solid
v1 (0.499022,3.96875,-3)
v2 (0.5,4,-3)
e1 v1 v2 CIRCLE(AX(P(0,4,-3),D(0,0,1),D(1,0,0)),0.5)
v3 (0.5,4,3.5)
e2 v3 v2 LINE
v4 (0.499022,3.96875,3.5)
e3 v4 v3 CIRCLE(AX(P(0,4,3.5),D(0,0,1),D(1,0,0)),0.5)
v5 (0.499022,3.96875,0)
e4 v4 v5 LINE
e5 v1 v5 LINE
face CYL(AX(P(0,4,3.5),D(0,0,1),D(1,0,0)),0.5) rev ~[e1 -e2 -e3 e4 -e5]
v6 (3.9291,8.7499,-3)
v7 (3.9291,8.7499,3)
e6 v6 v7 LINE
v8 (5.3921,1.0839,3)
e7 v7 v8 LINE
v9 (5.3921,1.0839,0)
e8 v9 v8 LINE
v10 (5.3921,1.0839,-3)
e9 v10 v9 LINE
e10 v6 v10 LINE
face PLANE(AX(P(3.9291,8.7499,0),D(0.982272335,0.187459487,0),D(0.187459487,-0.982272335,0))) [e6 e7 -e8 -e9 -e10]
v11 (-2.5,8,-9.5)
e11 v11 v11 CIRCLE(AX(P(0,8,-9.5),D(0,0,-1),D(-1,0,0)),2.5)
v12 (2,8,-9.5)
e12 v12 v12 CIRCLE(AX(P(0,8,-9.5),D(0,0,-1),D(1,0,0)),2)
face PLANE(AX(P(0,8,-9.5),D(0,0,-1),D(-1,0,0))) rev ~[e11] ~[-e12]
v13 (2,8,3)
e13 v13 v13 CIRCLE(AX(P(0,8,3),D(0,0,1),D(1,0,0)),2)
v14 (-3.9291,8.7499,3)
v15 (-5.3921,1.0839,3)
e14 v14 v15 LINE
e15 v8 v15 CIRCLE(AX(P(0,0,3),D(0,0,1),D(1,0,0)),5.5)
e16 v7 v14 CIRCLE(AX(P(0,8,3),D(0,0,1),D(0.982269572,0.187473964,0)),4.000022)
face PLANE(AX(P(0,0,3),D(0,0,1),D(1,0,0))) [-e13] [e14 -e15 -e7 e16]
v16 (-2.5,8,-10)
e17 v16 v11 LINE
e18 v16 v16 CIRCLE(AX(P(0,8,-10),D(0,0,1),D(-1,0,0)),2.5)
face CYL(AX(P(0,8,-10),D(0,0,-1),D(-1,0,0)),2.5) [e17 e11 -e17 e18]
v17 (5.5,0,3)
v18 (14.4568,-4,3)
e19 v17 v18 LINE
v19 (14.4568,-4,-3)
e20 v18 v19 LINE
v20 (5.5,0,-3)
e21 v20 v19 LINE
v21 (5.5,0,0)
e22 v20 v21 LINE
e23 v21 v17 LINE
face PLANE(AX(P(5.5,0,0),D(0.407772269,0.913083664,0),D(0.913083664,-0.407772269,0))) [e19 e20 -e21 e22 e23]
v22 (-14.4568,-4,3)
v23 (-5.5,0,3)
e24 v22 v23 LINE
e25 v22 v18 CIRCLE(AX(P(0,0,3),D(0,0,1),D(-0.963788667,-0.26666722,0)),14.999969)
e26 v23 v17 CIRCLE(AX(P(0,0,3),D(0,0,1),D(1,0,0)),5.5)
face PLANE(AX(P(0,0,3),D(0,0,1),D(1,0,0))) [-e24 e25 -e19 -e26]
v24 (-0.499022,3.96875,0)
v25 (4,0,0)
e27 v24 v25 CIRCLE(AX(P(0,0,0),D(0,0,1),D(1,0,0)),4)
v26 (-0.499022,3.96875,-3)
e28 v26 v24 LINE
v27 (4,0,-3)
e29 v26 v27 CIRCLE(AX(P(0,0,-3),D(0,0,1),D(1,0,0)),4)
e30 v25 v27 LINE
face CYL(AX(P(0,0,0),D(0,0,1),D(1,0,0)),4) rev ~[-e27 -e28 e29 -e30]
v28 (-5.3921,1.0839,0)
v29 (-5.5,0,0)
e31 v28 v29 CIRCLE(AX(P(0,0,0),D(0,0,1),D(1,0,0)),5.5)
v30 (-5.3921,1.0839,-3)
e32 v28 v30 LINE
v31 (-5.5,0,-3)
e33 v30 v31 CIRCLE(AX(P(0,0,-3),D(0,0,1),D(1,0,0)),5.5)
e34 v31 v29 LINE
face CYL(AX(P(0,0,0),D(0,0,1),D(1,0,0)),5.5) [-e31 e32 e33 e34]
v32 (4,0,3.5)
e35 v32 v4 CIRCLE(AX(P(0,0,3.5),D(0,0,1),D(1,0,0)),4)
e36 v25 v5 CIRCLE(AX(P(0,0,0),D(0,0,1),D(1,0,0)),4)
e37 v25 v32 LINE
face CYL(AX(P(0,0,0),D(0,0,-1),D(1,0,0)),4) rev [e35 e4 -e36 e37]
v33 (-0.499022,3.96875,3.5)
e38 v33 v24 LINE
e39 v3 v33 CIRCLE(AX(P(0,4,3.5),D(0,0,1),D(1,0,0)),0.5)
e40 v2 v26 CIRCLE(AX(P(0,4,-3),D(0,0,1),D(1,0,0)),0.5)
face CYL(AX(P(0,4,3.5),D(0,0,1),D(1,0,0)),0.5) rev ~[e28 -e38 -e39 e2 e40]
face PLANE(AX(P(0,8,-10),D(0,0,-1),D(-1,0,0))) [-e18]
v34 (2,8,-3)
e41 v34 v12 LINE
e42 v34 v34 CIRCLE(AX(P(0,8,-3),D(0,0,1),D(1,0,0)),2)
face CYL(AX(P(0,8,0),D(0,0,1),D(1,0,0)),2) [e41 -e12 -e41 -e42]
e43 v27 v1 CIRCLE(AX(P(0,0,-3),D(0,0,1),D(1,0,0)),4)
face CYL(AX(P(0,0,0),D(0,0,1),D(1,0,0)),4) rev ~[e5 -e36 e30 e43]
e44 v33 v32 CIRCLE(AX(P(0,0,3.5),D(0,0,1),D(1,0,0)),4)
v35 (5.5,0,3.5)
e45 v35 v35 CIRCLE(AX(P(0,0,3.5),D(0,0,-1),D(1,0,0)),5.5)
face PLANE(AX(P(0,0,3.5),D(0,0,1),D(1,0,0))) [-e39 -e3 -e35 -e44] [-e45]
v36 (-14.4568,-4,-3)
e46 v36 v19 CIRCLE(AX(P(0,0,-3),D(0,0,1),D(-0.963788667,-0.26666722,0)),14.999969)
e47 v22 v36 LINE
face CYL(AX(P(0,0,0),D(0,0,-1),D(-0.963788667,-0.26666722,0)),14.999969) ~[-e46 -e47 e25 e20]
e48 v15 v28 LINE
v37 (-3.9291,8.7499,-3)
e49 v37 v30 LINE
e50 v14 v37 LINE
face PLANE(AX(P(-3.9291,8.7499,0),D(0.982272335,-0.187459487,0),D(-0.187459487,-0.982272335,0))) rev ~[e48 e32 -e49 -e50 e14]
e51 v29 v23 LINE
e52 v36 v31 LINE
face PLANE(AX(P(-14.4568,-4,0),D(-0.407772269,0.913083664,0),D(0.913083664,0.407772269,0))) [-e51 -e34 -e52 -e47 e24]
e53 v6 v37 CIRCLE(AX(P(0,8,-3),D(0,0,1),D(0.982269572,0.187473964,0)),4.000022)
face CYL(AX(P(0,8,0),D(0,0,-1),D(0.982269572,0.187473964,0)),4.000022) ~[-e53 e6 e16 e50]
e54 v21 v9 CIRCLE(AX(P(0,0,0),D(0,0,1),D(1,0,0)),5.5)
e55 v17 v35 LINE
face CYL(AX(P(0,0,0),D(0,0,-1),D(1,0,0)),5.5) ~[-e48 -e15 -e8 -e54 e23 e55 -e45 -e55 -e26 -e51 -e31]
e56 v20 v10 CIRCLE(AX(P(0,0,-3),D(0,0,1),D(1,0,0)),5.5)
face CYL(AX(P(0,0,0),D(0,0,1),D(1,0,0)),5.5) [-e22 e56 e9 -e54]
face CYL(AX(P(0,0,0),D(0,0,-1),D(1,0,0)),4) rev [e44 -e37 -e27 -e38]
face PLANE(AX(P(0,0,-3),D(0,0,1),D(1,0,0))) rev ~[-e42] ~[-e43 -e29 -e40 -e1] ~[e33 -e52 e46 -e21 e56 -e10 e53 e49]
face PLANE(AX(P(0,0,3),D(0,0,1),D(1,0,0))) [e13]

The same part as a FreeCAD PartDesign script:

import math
import FreeCAD as App
import Part
import Sketcher

V = App.Vector

doc = App.newDocument("Part")
body = doc.addObject("PartDesign::Body", "Body")
body.AllowCompound = True

# Sketch on XY plane
sketch1 = doc.addObject("Sketcher::SketchObject", "Sketch")
body.addObject(sketch1)
sketch1.AttachmentSupport = (doc.XY_Plane, [""])
sketch1.MapMode = "FlatFace"
sketch1.addGeometry(Part.LineSegment(V(14.4568, -4, 0), V(5.5, 0, 0)), False)
sketch1.addGeometry(Part.ArcOfCircle(Part.Circle(V(0, 0, 0), V(0, 0, 1), 5.5), math.radians(180), math.radians(360)), False)
sketch1.addGeometry(Part.LineSegment(V(-5.5, 0, 0), V(-14.4568, -4, 0)), False)
sketch1.addGeometry(Part.ArcOfCircle(Part.Circle(V(0, 0, 0), V(0, 0, 1), 14.999969), math.radians(-164.533957), math.radians(-15.466043)), False)
sketch1.addGeometry(Part.ArcOfCircle(Part.Circle(V(0, 0, 0), V(0, 0, 1), 5.5), math.radians(11.365912), math.radians(168.634088)), False)
sketch1.addGeometry(Part.LineSegment(V(5.3921, 1.0839, 0), V(3.9291, 8.7499, 0)), False)
sketch1.addGeometry(Part.ArcOfCircle(Part.Circle(V(0, 8, 0), V(0, 0, 1), 4.000022), math.radians(10.805404), math.radians(169.194596)), False)
sketch1.addGeometry(Part.LineSegment(V(-3.9291, 8.7499, 0), V(-5.3921, 1.0839, 0)), False)
sketch1.addGeometry(Part.Circle(V(0, 8, 0), V(0, 0, 1), 2), False)
sketch1.addConstraint(Sketcher.Constraint("Coincident", 0, 2, 1, 2))
sketch1.addConstraint(Sketcher.Constraint("Coincident", 1, 1, 2, 1))
sketch1.addConstraint(Sketcher.Constraint("Coincident", 2, 2, 3, 1))
sketch1.addConstraint(Sketcher.Constraint("Coincident", 3, 2, 0, 1))
sketch1.addConstraint(Sketcher.Constraint("Coincident", 4, 1, 5, 1))
sketch1.addConstraint(Sketcher.Constraint("Coincident", 5, 2, 6, 1))
sketch1.addConstraint(Sketcher.Constraint("Coincident", 6, 2, 7, 1))
sketch1.addConstraint(Sketcher.Constraint("Coincident", 7, 2, 4, 2))
sketch1.addConstraint(Sketcher.Constraint("Coincident", 1, 3, -1, 1))
sketch1.addConstraint(Sketcher.Constraint("Coincident", 3, 3, -1, 1))
sketch1.addConstraint(Sketcher.Constraint("Coincident", 4, 3, -1, 1))
sketch1.addConstraint(Sketcher.Constraint("Coincident", 8, 3, 6, 3))
sketch1.addConstraint(Sketcher.Constraint("PointOnObject", 6, 3, -2))
sketch1.addConstraint(Sketcher.Constraint("PointOnObject", 0, 2, -1))
sketch1.addConstraint(Sketcher.Constraint("PointOnObject", 1, 1, -1))
sketch1.addConstraint(Sketcher.Constraint("Diameter", 8, 4.0))
sketch1.addConstraint(Sketcher.Constraint("Radius", 3, 15.0))
sketch1.addConstraint(Sketcher.Constraint("Radius", 6, 4.0))
sketch1.addConstraint(Sketcher.Constraint("Radius", 1, 5.5))
sketch1.addConstraint(Sketcher.Constraint("Radius", 4, 5.5))
sketch1.addConstraint(Sketcher.Constraint("DistanceY", -1, 1, 6, 3, 8.0))
sketch1.addConstraint(Sketcher.Constraint("DistanceY", 2, 2, -1, 1, 4.0))
sketch1.addConstraint(Sketcher.Constraint("DistanceY", 3, 2, -1, 1, 4.0))
sketch1.addConstraint(Sketcher.Constraint("DistanceY", -1, 1, 5, 2, 8.75))
sketch1.addConstraint(Sketcher.Constraint("DistanceY", -1, 1, 6, 2, 8.75))
sketch1.addConstraint(Sketcher.Constraint("DistanceY", -1, 1, 4, 1, 1.084))
sketch1.addConstraint(Sketcher.Constraint("DistanceX", 7, 2, -1, 1, 5.392))
pad1 = doc.addObject("PartDesign::Pad", "Pad")
body.addObject(pad1)
pad1.Profile = sketch1
pad1.Length = 6
pad1.Midplane = True

# Sketch on XY plane
sketch2 = doc.addObject("Sketcher::SketchObject", "Sketch001")
body.addObject(sketch2)
sketch2.AttachmentSupport = (doc.XY_Plane, [""])
sketch2.MapMode = "FlatFace"
sketch2.addGeometry(Part.Circle(V(0, 0, 0), V(0, 0, 1), 5.5), False)
sketch2.addGeometry(Part.Circle(V(0, 0, 0), V(0, 0, 1), 4), False)
sketch2.addConstraint(Sketcher.Constraint("Coincident", 0, 3, -1, 1))
sketch2.addConstraint(Sketcher.Constraint("Coincident", 1, 3, -1, 1))
sketch2.addConstraint(Sketcher.Constraint("Diameter", 0, 11.0))
sketch2.addConstraint(Sketcher.Constraint("Diameter", 1, 8.0))
pad2 = doc.addObject("PartDesign::Pad", "Pad001")
body.addObject(pad2)
pad2.Profile = sketch2
pad2.Length = 3.5

# Sketch on XY plane
sketch3 = doc.addObject("Sketcher::SketchObject", "Sketch002")
body.addObject(sketch3)
sketch3.AttachmentSupport = (doc.XY_Plane, [""])
sketch3.MapMode = "FlatFace"
sketch3.addGeometry(Part.Circle(V(0, 0, 0), V(0, 0, 1), 5.5), False)
sketch3.addGeometry(Part.Circle(V(0, 0, 0), V(0, 0, 1), 4), False)
sketch3.addConstraint(Sketcher.Constraint("Coincident", 0, 3, -1, 1))
sketch3.addConstraint(Sketcher.Constraint("Coincident", 1, 3, -1, 1))
sketch3.addConstraint(Sketcher.Constraint("Diameter", 0, 11.0))
sketch3.addConstraint(Sketcher.Constraint("Diameter", 1, 8.0))
pad3 = doc.addObject("PartDesign::Pad", "Pad002")
body.addObject(pad3)
pad3.Profile = sketch3
pad3.Length = 3
pad3.Reversed = True

# Sketch on XY plane
sketch4 = doc.addObject("Sketcher::SketchObject", "Sketch003")
body.addObject(sketch4)
sketch4.AttachmentSupport = (doc.XY_Plane, [""])
sketch4.MapMode = "FlatFace"
sketch4.AttachmentOffset = App.Placement(V(0, 0, 3.5), App.Rotation())
sketch4.addGeometry(Part.Circle(V(0, 4, 0), V(0, 0, 1), 0.5), False)
sketch4.addConstraint(Sketcher.Constraint("PointOnObject", 0, 3, -2))
sketch4.addConstraint(Sketcher.Constraint("Diameter", 0, 1.0))
sketch4.addConstraint(Sketcher.Constraint("DistanceY", -1, 1, 0, 3, 4.0))
pocket1 = doc.addObject("PartDesign::Pocket", "Pocket")
body.addObject(pocket1)
pocket1.Profile = sketch4
pocket1.Type = "ThroughAll"

# Sketch on XY plane
sketch5 = doc.addObject("Sketcher::SketchObject", "Sketch004")
body.addObject(sketch5)
sketch5.AttachmentSupport = (doc.XY_Plane, [""])
sketch5.MapMode = "FlatFace"
sketch5.addGeometry(Part.Circle(V(0, 8, 0), V(0, 0, 1), 2), False)
sketch5.addConstraint(Sketcher.Constraint("PointOnObject", 0, 3, -2))
sketch5.addConstraint(Sketcher.Constraint("Diameter", 0, 4.0))
sketch5.addConstraint(Sketcher.Constraint("DistanceY", -1, 1, 0, 3, 8.0))
pad4 = doc.addObject("PartDesign::Pad", "Pad003")
body.addObject(pad4)
pad4.Profile = sketch5
pad4.Length = 10
pad4.Reversed = True

# Sketch on XY plane
sketch6 = doc.addObject("Sketcher::SketchObject", "Sketch005")
body.addObject(sketch6)
sketch6.AttachmentSupport = (doc.XY_Plane, [""])
sketch6.MapMode = "FlatFace"
sketch6.addGeometry(Part.Circle(V(0, 8, 0), V(0, 0, 1), 2), False)
sketch6.addConstraint(Sketcher.Constraint("PointOnObject", 0, 3, -2))
sketch6.addConstraint(Sketcher.Constraint("Diameter", 0, 4.0))
sketch6.addConstraint(Sketcher.Constraint("DistanceY", -1, 1, 0, 3, 8.0))
pad5 = doc.addObject("PartDesign::Pad", "Pad004")
body.addObject(pad5)
pad5.Profile = sketch6
pad5.Length = 3

# Sketch on XY plane
sketch7 = doc.addObject("Sketcher::SketchObject", "Sketch006")
body.addObject(sketch7)
sketch7.AttachmentSupport = (doc.XY_Plane, [""])
sketch7.MapMode = "FlatFace"
sketch7.AttachmentOffset = App.Placement(V(0, 0, -10), App.Rotation())
sketch7.addGeometry(Part.Circle(V(0, 8, 0), V(0, 0, 1), 2.5), False)
sketch7.addGeometry(Part.Circle(V(0, 8, 0), V(0, 0, 1), 2), False)
sketch7.addConstraint(Sketcher.Constraint("Coincident", 1, 3, 0, 3))
sketch7.addConstraint(Sketcher.Constraint("PointOnObject", 0, 3, -2))
sketch7.addConstraint(Sketcher.Constraint("Diameter", 0, 5.0))
sketch7.addConstraint(Sketcher.Constraint("Diameter", 1, 4.0))
sketch7.addConstraint(Sketcher.Constraint("DistanceY", -1, 1, 0, 3, 8.0))
pad6 = doc.addObject("PartDesign::Pad", "Pad005")
body.addObject(pad6)
pad6.Profile = sketch7
pad6.Length = 0.5

doc.recompute()
